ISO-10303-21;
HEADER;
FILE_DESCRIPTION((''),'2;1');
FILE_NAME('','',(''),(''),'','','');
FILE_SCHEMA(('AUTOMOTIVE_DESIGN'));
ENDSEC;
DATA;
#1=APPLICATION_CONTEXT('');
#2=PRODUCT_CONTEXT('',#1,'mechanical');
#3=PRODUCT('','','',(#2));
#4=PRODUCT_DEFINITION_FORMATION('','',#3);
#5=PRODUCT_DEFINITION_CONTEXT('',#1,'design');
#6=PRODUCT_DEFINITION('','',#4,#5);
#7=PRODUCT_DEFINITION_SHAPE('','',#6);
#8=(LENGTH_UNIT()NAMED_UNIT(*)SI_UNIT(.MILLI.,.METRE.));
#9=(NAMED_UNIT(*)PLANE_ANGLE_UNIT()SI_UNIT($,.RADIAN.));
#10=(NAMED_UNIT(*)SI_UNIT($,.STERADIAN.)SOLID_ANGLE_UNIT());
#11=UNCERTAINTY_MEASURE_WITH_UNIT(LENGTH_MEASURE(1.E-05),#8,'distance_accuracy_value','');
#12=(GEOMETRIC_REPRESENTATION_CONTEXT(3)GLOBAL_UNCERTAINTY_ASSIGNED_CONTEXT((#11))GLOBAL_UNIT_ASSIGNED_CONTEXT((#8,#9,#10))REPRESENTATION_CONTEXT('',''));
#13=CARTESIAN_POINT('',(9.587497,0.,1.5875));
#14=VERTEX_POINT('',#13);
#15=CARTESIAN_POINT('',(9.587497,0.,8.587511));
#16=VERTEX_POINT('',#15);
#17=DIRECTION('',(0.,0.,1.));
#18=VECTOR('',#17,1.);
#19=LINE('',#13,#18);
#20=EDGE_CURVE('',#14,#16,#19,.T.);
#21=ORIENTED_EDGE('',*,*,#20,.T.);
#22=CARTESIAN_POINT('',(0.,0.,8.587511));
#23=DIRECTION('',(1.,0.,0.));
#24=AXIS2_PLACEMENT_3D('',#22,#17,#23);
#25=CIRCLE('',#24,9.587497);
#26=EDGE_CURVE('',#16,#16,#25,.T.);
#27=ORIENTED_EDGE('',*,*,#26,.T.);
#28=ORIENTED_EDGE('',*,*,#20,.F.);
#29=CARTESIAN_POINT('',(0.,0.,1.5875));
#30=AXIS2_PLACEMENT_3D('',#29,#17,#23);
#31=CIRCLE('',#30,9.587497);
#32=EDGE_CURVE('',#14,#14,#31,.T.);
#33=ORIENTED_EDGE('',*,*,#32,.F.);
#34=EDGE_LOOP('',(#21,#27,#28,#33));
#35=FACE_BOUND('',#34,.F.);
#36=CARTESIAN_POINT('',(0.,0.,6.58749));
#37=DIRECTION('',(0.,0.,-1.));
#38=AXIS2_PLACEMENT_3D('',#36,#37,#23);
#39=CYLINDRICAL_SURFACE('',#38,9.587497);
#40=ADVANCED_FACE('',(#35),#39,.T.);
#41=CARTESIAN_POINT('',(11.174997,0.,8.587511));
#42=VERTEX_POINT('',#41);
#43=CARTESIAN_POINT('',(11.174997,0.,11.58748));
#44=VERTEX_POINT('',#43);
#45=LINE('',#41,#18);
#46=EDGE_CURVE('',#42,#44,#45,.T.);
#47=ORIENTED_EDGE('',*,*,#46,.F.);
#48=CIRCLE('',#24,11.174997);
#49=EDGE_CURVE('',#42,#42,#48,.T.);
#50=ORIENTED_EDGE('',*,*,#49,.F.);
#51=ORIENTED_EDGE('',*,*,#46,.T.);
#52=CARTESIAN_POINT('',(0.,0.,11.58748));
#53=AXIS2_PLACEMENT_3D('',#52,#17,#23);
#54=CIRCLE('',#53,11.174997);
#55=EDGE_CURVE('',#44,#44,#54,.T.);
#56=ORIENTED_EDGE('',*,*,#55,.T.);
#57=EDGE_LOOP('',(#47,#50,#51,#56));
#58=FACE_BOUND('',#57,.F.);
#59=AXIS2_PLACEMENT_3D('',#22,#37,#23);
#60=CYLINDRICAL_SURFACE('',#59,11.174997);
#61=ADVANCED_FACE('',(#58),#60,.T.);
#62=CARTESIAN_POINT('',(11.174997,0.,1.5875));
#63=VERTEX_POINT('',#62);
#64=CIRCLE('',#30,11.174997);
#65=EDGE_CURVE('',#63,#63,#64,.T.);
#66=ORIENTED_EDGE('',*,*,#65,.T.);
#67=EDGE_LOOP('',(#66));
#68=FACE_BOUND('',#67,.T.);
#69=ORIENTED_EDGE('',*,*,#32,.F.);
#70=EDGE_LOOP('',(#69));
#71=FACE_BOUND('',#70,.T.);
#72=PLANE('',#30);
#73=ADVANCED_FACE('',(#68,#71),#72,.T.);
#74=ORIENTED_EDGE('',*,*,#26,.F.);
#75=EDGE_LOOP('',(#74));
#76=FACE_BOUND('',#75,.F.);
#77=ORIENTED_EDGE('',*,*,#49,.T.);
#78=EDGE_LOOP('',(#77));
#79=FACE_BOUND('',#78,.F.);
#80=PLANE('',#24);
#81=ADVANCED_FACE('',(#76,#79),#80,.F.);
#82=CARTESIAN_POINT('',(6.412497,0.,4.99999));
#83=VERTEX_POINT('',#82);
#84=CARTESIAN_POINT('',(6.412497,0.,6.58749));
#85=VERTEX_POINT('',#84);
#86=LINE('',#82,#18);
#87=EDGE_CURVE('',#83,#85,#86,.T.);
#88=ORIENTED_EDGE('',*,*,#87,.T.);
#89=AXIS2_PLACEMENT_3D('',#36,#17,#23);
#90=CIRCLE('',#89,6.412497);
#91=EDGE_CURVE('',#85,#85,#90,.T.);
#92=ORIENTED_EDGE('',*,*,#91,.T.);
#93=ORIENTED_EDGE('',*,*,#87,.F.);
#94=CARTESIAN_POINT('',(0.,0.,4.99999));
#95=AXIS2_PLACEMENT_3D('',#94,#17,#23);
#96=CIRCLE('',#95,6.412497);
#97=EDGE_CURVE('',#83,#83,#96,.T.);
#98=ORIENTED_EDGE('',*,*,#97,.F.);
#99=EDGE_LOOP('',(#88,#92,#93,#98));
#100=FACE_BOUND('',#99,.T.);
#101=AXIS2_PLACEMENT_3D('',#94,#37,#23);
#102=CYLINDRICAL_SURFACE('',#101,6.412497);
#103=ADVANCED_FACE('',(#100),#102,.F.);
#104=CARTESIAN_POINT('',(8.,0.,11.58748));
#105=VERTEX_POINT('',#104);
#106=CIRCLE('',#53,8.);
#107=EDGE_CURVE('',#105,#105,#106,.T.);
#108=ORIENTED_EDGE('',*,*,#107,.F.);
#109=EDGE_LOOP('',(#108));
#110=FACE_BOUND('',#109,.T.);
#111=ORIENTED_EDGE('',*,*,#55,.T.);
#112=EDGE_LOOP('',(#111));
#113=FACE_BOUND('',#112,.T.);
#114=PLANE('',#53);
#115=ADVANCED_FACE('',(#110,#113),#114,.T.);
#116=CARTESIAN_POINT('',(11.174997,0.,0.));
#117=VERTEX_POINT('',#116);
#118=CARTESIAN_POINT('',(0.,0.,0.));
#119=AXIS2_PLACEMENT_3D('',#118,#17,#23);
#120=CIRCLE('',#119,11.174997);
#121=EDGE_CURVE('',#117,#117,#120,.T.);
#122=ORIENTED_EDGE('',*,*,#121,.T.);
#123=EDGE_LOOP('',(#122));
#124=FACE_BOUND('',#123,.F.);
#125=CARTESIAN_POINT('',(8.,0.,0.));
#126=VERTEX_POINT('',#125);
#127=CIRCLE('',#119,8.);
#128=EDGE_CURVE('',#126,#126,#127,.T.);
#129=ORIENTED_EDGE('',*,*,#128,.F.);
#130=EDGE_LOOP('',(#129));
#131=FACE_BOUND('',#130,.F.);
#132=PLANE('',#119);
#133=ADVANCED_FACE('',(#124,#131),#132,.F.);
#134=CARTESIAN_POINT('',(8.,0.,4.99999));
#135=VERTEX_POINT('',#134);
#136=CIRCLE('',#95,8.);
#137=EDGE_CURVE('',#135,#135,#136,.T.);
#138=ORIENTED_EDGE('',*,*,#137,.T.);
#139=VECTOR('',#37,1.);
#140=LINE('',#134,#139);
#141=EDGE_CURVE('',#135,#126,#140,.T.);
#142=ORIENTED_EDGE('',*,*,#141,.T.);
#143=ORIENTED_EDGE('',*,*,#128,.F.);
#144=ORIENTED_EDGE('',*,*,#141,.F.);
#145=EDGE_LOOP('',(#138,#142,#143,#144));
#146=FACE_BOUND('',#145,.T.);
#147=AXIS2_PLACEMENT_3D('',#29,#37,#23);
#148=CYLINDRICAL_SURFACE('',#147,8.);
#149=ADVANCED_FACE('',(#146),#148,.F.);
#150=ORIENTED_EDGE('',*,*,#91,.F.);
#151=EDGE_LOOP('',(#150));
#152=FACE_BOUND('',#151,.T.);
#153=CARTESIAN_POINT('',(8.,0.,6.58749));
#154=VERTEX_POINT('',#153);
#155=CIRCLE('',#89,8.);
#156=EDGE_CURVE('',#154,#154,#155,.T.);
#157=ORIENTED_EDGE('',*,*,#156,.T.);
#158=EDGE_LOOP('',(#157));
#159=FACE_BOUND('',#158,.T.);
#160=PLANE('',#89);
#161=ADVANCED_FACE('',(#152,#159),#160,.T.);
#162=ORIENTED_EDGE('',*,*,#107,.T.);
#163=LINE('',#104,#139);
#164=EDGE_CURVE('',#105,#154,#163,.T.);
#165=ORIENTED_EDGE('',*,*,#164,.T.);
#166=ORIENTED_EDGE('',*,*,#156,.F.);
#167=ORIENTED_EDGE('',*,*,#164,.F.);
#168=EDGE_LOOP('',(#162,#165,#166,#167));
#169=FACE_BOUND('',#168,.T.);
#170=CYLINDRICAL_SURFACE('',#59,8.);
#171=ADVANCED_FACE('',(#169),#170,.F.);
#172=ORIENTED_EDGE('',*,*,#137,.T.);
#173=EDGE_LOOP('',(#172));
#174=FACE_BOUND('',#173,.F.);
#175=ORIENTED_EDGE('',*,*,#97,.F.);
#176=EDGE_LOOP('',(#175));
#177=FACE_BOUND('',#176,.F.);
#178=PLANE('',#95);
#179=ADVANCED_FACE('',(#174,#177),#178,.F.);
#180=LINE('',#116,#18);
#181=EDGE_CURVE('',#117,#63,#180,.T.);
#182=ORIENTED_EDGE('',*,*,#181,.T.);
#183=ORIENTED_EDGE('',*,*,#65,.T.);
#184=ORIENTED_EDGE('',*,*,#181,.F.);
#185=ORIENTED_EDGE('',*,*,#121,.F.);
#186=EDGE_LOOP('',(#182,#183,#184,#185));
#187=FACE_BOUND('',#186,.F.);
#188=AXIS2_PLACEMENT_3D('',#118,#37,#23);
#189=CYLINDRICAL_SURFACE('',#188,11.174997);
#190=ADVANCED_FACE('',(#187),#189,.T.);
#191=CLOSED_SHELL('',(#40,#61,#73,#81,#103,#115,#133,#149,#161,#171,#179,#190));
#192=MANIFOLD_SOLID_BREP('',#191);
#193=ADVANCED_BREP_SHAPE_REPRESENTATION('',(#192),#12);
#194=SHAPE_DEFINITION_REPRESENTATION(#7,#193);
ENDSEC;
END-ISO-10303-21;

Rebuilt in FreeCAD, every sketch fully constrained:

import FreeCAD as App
import Part
import Sketcher

V = App.Vector

doc = App.newDocument("Part")
body = doc.addObject("PartDesign::Body", "Body")

# Sketch on XY plane
sketch1 = body.newObject("Sketcher::SketchObject", "Sketch")
sketch1.AttachmentSupport = (doc.getObject("XY_Plane"), [""])
sketch1.MapMode = "FlatFace"
sketch1.addGeometry(Part.Circle(V(0, 0, 0), V(0, 0, 1), 11.174997), False)
sketch1.addGeometry(Part.Circle(V(0, 0, 0), V(0, 0, 1), 8), False)
sketch1.addConstraint(Sketcher.Constraint("Coincident", 0, 3, -1, 1))
sketch1.addConstraint(Sketcher.Constraint("Coincident", 1, 3, -1, 1))
sketch1.addConstraint(Sketcher.Constraint("Diameter", 1, 16.0))
sketch1.addConstraint(Sketcher.Constraint("Diameter", 0, 22.349993))
pad1 = body.newObject("PartDesign::Pad", "Pad")
pad1.Profile = sketch1
pad1.Length = 1.5875

# Sketch on XY plane
sketch2 = body.newObject("Sketcher::SketchObject", "Sketch001")
sketch2.AttachmentSupport = (doc.getObject("XY_Plane"), [""])
sketch2.MapMode = "FlatFace"
sketch2.AttachmentOffset = App.Placement(V(0, 0, 1.5875), App.Rotation())
sketch2.addGeometry(Part.Circle(V(0, 0, 0), V(0, 0, 1), 9.587497), False)
sketch2.addGeometry(Part.Circle(V(0, 0, 0), V(0, 0, 1), 8), False)
sketch2.addConstraint(Sketcher.Constraint("Coincident", 0, 3, -1, 1))
sketch2.addConstraint(Sketcher.Constraint("Coincident", 1, 3, -1, 1))
sketch2.addConstraint(Sketcher.Constraint("Diameter", 1, 16.0))
sketch2.addConstraint(Sketcher.Constraint("Diameter", 0, 19.174993))
pad2 = body.newObject("PartDesign::Pad", "Pad001")
pad2.Profile = sketch2
pad2.Length = 3.41249

# Sketch on XY plane
sketch3 = body.newObject("Sketcher::SketchObject", "Sketch002")
sketch3.AttachmentSupport = (doc.getObject("XY_Plane"), [""])
sketch3.MapMode = "FlatFace"
sketch3.AttachmentOffset = App.Placement(V(0, 0, 4.99999), App.Rotation())
sketch3.addGeometry(Part.Circle(V(0, 0, 0), V(0, 0, 1), 9.587497), False)
sketch3.addGeometry(Part.Circle(V(0, 0, 0), V(0, 0, 1), 6.412497), False)
sketch3.addConstraint(Sketcher.Constraint("Coincident", 0, 3, -1, 1))
sketch3.addConstraint(Sketcher.Constraint("Coincident", 1, 3, -1, 1))
sketch3.addConstraint(Sketcher.Constraint("Diameter", 0, 19.174993))
sketch3.addConstraint(Sketcher.Constraint("Diameter", 1, 12.824993))
pad3 = body.newObject("PartDesign::Pad", "Pad002")
pad3.Profile = sketch3
pad3.Length = 1.5875

# Sketch on XY plane
sketch4 = body.newObject("Sketcher::SketchObject", "Sketch003")
sketch4.AttachmentSupport = (doc.getObject("XY_Plane"), [""])
sketch4.MapMode = "FlatFace"
sketch4.AttachmentOffset = App.Placement(V(0, 0, 6.58749), App.Rotation())
sketch4.addGeometry(Part.Circle(V(0, 0, 0), V(0, 0, 1), 9.587497), False)
sketch4.addGeometry(Part.Circle(V(0, 0, 0), V(0, 0, 1), 8), False)
sketch4.addConstraint(Sketcher.Constraint("Coincident", 0, 3, -1, 1))
sketch4.addConstraint(Sketcher.Constraint("Coincident", 1, 3, -1, 1))
sketch4.addConstraint(Sketcher.Constraint("Diameter", 1, 16.0))
sketch4.addConstraint(Sketcher.Constraint("Diameter", 0, 19.174993))
pad4 = body.newObject("PartDesign::Pad", "Pad003")
pad4.Profile = sketch4
pad4.Length = 2.000021

# Sketch on XY plane
sketch5 = body.newObject("Sketcher::SketchObject", "Sketch004")
sketch5.AttachmentSupport = (doc.getObject("XY_Plane"), [""])
sketch5.MapMode = "FlatFace"
sketch5.AttachmentOffset = App.Placement(V(0, 0, 8.587511), App.Rotation())
sketch5.addGeometry(Part.Circle(V(0, 0, 0), V(0, 0, 1), 11.174997), False)
sketch5.addGeometry(Part.Circle(V(0, 0, 0), V(0, 0, 1), 8), False)
sketch5.addConstraint(Sketcher.Constraint("Coincident", 0, 3, -1, 1))
sketch5.addConstraint(Sketcher.Constraint("Coincident", 1, 3, -1, 1))
sketch5.addConstraint(Sketcher.Constraint("Diameter", 1, 16.0))
sketch5.addConstraint(Sketcher.Constraint("Diameter", 0, 22.349993))
pad5 = body.newObject("PartDesign::Pad", "Pad004")
pad5.Profile = sketch5
pad5.Length = 2.999969

doc.recompute()
